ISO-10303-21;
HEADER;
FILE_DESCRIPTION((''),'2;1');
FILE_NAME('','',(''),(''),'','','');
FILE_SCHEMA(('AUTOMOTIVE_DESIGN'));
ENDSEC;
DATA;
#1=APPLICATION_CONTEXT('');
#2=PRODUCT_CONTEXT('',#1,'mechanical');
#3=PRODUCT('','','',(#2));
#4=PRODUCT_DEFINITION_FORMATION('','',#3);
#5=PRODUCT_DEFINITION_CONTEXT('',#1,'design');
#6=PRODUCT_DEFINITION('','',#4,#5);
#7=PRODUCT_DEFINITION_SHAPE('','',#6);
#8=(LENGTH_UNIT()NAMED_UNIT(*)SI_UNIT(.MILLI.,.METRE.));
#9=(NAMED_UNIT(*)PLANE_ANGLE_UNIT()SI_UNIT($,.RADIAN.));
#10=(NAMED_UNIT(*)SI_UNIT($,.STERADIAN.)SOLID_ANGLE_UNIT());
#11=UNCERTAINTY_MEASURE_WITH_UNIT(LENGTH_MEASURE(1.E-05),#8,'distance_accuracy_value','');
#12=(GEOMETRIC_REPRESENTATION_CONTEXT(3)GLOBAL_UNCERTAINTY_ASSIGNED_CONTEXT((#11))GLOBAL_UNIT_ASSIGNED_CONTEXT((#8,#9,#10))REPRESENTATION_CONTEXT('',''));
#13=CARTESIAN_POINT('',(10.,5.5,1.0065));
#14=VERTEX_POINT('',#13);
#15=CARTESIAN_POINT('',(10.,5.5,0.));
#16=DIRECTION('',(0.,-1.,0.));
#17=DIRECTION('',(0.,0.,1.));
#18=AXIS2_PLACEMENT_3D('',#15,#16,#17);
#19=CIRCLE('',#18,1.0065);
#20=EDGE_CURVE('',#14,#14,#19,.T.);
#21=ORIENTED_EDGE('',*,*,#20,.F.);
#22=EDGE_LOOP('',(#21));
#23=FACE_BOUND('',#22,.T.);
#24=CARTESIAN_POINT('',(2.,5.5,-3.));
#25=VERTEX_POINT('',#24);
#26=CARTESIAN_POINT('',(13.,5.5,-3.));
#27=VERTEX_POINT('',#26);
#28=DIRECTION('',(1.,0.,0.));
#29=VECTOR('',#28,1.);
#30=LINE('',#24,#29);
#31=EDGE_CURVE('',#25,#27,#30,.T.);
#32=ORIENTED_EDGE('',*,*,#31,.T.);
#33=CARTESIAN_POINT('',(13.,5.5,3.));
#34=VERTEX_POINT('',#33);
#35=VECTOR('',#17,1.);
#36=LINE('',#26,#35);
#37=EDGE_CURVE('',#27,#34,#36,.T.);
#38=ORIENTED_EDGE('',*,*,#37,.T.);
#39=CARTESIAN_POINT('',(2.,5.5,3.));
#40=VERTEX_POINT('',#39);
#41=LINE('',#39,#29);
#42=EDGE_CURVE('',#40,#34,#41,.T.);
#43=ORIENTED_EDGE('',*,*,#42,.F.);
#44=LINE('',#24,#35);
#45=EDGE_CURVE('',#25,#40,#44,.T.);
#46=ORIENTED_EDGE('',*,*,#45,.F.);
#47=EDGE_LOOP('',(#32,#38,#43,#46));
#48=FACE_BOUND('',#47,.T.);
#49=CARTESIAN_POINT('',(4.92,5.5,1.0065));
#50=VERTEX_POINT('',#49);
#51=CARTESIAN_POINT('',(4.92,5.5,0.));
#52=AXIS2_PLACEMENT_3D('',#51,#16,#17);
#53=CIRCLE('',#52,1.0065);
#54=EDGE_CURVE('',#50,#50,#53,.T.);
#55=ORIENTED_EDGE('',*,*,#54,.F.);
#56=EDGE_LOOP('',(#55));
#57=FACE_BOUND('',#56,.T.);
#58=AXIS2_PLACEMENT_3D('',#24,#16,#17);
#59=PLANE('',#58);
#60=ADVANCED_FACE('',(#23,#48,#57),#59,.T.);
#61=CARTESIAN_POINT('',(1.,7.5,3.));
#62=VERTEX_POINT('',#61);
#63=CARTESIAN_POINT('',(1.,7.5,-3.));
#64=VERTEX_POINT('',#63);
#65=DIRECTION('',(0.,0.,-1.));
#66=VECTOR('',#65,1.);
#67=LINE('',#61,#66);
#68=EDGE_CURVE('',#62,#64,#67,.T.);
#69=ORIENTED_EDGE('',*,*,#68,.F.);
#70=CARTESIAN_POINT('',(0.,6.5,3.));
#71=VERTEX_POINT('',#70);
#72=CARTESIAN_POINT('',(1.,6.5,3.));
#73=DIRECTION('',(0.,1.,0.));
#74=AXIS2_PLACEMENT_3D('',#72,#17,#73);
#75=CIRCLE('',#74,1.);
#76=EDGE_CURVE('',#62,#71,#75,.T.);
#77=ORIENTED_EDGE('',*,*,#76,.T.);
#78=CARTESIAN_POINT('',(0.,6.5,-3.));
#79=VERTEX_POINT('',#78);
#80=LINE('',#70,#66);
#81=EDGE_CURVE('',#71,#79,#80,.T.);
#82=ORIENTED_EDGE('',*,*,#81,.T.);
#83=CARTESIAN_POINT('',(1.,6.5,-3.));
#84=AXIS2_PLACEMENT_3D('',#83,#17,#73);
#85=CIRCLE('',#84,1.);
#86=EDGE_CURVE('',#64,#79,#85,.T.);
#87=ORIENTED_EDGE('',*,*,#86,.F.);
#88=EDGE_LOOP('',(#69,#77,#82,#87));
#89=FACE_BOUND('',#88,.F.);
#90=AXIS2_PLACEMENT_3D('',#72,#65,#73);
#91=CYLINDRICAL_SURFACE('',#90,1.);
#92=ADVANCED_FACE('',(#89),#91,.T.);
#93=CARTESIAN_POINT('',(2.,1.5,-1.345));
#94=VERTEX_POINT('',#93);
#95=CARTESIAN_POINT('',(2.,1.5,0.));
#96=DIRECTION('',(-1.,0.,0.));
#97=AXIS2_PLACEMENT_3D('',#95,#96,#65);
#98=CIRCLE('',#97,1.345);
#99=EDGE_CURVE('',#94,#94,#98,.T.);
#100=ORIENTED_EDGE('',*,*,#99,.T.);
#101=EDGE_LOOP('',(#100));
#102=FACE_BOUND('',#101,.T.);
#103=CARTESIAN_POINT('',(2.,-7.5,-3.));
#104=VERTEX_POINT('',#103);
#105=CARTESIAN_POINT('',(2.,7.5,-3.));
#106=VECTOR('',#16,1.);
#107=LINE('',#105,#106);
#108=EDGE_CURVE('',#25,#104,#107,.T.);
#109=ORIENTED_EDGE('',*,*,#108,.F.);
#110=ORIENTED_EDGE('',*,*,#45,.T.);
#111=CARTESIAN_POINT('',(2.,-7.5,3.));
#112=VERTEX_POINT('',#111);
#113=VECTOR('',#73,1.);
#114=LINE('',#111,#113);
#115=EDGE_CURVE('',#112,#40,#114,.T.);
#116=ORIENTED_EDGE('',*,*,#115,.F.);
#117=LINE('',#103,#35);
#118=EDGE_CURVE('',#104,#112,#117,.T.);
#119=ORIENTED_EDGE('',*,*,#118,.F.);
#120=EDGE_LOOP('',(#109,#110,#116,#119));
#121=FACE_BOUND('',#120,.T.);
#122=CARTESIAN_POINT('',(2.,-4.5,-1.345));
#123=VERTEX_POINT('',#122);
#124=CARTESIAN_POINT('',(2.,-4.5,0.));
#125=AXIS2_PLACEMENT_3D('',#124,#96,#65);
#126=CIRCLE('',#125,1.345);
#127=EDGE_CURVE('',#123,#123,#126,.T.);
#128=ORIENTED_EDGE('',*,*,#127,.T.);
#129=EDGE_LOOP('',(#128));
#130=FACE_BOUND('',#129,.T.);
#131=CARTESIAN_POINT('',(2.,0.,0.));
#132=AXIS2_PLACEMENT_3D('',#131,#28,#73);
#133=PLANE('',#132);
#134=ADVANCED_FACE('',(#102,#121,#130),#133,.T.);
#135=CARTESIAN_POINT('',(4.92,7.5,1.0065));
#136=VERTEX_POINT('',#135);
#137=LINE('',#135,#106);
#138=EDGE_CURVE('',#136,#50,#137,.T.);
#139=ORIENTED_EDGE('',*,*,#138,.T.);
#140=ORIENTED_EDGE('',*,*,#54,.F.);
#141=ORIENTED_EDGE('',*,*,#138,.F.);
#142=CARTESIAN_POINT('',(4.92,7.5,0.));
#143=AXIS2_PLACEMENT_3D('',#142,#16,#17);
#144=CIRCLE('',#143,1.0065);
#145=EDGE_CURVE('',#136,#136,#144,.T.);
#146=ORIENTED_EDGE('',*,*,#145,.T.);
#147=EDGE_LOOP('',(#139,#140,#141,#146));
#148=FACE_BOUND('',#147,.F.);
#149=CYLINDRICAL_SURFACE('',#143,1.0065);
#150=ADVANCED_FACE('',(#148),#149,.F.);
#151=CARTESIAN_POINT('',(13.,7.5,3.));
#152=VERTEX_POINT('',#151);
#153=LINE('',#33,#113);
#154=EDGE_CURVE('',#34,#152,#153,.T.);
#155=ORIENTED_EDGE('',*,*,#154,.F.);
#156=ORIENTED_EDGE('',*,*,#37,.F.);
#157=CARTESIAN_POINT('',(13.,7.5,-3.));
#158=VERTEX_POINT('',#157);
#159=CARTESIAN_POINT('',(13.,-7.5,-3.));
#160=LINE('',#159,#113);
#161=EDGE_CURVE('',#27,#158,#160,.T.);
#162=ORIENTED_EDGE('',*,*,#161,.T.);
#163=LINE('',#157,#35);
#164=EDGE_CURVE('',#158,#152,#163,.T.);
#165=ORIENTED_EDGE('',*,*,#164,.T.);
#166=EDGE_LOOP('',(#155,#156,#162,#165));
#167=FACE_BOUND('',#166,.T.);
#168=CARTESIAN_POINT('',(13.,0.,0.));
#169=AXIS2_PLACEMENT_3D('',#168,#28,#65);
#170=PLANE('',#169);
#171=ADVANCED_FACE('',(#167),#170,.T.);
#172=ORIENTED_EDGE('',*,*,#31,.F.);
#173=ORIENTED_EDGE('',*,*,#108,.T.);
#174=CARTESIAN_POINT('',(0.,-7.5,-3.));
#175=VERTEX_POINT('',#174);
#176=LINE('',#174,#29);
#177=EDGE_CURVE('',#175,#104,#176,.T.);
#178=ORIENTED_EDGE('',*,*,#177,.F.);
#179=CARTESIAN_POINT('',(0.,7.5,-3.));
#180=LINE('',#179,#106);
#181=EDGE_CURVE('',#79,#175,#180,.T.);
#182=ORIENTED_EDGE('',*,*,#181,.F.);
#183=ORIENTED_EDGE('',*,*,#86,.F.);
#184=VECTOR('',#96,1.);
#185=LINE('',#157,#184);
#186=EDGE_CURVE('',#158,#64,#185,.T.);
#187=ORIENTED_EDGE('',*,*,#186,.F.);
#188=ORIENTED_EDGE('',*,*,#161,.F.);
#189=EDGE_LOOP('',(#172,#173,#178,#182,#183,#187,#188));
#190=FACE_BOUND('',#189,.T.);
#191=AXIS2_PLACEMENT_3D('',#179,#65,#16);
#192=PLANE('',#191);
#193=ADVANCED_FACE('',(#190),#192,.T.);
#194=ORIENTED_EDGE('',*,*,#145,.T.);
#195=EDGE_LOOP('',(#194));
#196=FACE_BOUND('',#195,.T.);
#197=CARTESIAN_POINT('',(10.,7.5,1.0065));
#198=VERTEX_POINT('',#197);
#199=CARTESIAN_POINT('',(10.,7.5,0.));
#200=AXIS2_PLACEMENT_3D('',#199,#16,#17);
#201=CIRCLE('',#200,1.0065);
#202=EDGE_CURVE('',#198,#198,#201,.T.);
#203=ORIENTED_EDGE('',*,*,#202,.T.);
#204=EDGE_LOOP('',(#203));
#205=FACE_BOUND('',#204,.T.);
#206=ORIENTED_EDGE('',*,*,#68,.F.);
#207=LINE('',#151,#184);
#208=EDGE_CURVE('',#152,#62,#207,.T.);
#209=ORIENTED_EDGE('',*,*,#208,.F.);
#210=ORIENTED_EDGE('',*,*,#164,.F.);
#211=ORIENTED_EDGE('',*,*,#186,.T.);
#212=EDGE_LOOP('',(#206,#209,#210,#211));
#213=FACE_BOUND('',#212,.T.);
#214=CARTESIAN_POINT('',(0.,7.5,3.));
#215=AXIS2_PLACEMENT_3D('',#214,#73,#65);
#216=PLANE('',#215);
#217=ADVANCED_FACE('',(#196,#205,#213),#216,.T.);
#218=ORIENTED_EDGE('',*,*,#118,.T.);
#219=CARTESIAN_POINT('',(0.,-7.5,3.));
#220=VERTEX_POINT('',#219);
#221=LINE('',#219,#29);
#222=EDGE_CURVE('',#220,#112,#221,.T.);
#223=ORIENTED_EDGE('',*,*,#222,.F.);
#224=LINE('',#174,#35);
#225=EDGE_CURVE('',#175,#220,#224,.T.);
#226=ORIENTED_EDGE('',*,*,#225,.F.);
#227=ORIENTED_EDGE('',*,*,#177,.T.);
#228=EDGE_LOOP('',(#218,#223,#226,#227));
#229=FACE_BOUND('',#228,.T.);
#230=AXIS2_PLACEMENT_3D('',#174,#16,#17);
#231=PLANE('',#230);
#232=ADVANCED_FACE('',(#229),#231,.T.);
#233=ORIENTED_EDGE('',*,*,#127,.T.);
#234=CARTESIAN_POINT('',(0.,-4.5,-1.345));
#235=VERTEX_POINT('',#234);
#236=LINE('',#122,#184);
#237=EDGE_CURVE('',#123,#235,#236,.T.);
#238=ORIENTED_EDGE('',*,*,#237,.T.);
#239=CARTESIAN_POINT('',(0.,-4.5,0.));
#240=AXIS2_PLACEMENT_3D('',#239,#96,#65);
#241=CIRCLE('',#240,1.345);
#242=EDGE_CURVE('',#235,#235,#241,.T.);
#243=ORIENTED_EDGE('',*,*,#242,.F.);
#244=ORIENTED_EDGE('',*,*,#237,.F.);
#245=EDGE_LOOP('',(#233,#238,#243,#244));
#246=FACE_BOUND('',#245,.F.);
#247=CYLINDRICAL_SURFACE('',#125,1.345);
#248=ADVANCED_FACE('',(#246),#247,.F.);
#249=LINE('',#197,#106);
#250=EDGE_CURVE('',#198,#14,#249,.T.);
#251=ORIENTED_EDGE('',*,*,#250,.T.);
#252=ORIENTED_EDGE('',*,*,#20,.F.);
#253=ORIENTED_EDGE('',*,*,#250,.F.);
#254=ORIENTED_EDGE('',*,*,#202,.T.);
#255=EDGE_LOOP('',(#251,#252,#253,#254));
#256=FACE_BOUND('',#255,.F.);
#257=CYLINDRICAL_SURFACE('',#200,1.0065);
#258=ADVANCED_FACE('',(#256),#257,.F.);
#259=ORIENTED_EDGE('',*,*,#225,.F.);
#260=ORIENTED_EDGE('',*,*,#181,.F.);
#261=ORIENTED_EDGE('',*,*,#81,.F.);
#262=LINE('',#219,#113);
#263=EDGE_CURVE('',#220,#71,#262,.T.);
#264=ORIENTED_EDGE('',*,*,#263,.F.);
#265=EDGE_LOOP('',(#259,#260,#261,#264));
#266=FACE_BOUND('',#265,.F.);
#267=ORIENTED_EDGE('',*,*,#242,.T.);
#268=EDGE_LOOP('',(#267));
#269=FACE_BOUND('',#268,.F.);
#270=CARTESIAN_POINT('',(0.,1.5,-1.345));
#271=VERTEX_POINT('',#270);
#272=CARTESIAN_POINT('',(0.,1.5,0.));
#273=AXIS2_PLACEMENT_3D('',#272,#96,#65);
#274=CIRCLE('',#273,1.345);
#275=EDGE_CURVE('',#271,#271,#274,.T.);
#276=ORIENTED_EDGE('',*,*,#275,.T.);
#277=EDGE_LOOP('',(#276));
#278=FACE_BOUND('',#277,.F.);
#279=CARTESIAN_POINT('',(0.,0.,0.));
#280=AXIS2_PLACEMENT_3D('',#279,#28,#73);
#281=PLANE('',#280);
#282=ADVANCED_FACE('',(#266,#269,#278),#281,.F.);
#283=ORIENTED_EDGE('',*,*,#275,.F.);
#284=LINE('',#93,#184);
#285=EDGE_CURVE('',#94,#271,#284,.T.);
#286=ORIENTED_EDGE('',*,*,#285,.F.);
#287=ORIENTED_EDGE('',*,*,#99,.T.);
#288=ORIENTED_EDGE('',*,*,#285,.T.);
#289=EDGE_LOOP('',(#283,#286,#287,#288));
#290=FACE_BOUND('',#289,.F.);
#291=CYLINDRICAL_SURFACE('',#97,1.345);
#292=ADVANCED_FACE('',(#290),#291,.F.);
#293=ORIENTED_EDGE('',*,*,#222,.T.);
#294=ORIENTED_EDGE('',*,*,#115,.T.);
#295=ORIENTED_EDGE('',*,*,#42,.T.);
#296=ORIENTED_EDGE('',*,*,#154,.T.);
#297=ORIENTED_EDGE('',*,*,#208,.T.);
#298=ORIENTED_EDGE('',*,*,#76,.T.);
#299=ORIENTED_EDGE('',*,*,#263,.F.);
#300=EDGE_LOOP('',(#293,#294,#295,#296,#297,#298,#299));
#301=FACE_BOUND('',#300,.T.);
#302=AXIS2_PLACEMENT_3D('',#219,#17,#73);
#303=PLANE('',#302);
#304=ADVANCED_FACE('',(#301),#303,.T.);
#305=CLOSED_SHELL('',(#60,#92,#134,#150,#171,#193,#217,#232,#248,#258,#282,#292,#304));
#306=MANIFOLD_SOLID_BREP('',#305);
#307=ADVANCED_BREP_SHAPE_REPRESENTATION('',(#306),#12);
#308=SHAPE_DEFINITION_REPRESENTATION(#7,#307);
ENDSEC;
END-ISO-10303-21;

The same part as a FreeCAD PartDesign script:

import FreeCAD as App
import Part
import Sketcher


def edges_at(feature, points):
    """Names of the edges that pass closest to the given points."""
    edges = feature.Shape.Edges
    near = lambda p: min(range(len(edges)), key=lambda i: edges[i].distToShape(Part.Vertex(*p))[0])
    return sorted({f"Edge{near(p) + 1}" for p in points})


def add_polygon(sketch, points):
    """Adds a closed chain of lines whose ends are joined by coincident constraints."""
    first, n = sketch.GeometryCount, len(points)
    for a, b in zip(points, points[1:] + points[:1]):
        sketch.addGeometry(Part.LineSegment(App.Vector(*a, 0), App.Vector(*b, 0)), False)
    for i in range(n):
        sketch.addConstraint(Sketcher.Constraint("Coincident", first + i, 2, first + (i + 1) % n, 1))

doc = App.newDocument("Part")
body = doc.addObject("PartDesign::Body", "Body")

# Sketch on YZ plane
sketch1 = body.newObject("Sketcher::SketchObject", "Sketch")
sketch1.AttachmentSupport = (doc.getObject("YZ_Plane"), [""])
sketch1.MapMode = "FlatFace"
add_polygon(sketch1, [(8, 3), (-8, 3), (-8, -3), (8, -3)])  # lines 0-3
sketch1.addConstraint([
    Sketcher.Constraint("Horizontal", 0),
    Sketcher.Constraint("Vertical", 1),
    Sketcher.Constraint("Horizontal", 2),
    Sketcher.Constraint("Vertical", 3),
    Sketcher.Constraint("Symmetric", 0, 2, 2, 2, -1, 1),
    Sketcher.Constraint("DistanceX", 0, 2, 0, 1, 15.0),
    Sketcher.Constraint("DistanceY", 1, 2, 1, 1, 6.0),
])
pad1 = body.newObject("PartDesign::Pad", "Pad")
pad1.Profile = sketch1
pad1.Length = 2

# Sketch on YZ plane
sketch2 = body.newObject("Sketcher::SketchObject", "Sketch001")
sketch2.AttachmentSupport = (doc.getObject("YZ_Plane"), [""])
sketch2.MapMode = "FlatFace"
sketch2.AttachmentOffset = App.Placement(App.Vector(0, 0, 2), App.Rotation())
add_polygon(sketch2, [(5.5, -3), (7.5, -3), (7.5, 3), (5.5, 3)])  # lines 0-3
sketch2.addConstraint([
    Sketcher.Constraint("Horizontal", 0),
    Sketcher.Constraint("Vertical", 1),
    Sketcher.Constraint("Horizontal", 2),
    Sketcher.Constraint("Vertical", 3),
    Sketcher.Constraint("DistanceX", 0, 1, 0, 2, 2.0),
    Sketcher.Constraint("DistanceY", 1, 1, 1, 2, 6.0),
    Sketcher.Constraint("DistanceY", 0, 2, -1, 1, 3.0),
    Sketcher.Constraint("DistanceX", -1, 1, 0, 2, 7.5),
])
pad2 = body.newObject("PartDesign::Pad", "Pad001")
pad2.Profile = sketch2
pad2.Length = 11
doc.recompute()

fillet = body.newObject("PartDesign::Fillet", "Fillet")
fillet.Base = (pad2, edges_at(pad2, [(0, 7.5, 0)]))
fillet.Radius = 1

# Sketch on XZ plane
sketch3 = body.newObject("Sketcher::SketchObject", "Sketch002")
sketch3.AttachmentSupport = (doc.getObject("XZ_Plane"), [""])
sketch3.MapMode = "FlatFace"
sketch3.AttachmentOffset = App.Placement(App.Vector(0, 0, -7.5), App.Rotation())
sketch3.addGeometry([
    Part.Circle(App.Vector(4.9, 0, 0), App.Vector(0, 0, 1), 1),
    Part.Circle(App.Vector(10, 0, 0), App.Vector(0, 0, 1), 1),
], False)
sketch3.addConstraint([
    Sketcher.Constraint("Equal", 0, 1),
    Sketcher.Constraint("PointOnObject", 0, 3, -1),
    Sketcher.Constraint("PointOnObject", 1, 3, -1),
    Sketcher.Constraint("Diameter", 0, 2.013),
    Sketcher.Constraint("DistanceX", -1, 1, 1, 3, 10.0),
    Sketcher.Constraint("DistanceX", -1, 1, 0, 3, 4.92),
])
doc.recompute()
hole = body.newObject("PartDesign::Hole", "Hole")
hole.Profile = sketch3
hole.ThreadType = "None"
hole.Diameter = 2.013
hole.DepthType = "ThroughAll"
hole.Reversed = True

# Sketch on YZ plane
sketch4 = body.newObject("Sketcher::SketchObject", "Sketch003")
sketch4.AttachmentSupport = (doc.getObject("YZ_Plane"), [""])
sketch4.MapMode = "FlatFace"
sketch4.AttachmentOffset = App.Placement(App.Vector(0, 0, 2), App.Rotation())
sketch4.addGeometry([
    Part.Circle(App.Vector(1.5, 0, 0), App.Vector(0, 0, 1), 1.3),
    Part.Circle(App.Vector(-4.5, 0, 0), App.Vector(0, 0, 1), 1.3),
], False)
sketch4.addConstraint([
    Sketcher.Constraint("Equal", 0, 1),
    Sketcher.Constraint("PointOnObject", 0, 3, -1),
    Sketcher.Constraint("PointOnObject", 1, 3, -1),
    Sketcher.Constraint("Diameter", 0, 2.69),
    Sketcher.Constraint("DistanceX", 1, 3, 0, 3, 6.0),
    Sketcher.Constraint("DistanceX", -1, 1, 0, 3, 1.5),
])
doc.recompute()
hole2 = body.newObject("PartDesign::Hole", "Hole001")
hole2.Profile = sketch4
hole2.ThreadType = "None"
hole2.Diameter = 2.69
hole2.DepthType = "ThroughAll"

doc.recompute()
